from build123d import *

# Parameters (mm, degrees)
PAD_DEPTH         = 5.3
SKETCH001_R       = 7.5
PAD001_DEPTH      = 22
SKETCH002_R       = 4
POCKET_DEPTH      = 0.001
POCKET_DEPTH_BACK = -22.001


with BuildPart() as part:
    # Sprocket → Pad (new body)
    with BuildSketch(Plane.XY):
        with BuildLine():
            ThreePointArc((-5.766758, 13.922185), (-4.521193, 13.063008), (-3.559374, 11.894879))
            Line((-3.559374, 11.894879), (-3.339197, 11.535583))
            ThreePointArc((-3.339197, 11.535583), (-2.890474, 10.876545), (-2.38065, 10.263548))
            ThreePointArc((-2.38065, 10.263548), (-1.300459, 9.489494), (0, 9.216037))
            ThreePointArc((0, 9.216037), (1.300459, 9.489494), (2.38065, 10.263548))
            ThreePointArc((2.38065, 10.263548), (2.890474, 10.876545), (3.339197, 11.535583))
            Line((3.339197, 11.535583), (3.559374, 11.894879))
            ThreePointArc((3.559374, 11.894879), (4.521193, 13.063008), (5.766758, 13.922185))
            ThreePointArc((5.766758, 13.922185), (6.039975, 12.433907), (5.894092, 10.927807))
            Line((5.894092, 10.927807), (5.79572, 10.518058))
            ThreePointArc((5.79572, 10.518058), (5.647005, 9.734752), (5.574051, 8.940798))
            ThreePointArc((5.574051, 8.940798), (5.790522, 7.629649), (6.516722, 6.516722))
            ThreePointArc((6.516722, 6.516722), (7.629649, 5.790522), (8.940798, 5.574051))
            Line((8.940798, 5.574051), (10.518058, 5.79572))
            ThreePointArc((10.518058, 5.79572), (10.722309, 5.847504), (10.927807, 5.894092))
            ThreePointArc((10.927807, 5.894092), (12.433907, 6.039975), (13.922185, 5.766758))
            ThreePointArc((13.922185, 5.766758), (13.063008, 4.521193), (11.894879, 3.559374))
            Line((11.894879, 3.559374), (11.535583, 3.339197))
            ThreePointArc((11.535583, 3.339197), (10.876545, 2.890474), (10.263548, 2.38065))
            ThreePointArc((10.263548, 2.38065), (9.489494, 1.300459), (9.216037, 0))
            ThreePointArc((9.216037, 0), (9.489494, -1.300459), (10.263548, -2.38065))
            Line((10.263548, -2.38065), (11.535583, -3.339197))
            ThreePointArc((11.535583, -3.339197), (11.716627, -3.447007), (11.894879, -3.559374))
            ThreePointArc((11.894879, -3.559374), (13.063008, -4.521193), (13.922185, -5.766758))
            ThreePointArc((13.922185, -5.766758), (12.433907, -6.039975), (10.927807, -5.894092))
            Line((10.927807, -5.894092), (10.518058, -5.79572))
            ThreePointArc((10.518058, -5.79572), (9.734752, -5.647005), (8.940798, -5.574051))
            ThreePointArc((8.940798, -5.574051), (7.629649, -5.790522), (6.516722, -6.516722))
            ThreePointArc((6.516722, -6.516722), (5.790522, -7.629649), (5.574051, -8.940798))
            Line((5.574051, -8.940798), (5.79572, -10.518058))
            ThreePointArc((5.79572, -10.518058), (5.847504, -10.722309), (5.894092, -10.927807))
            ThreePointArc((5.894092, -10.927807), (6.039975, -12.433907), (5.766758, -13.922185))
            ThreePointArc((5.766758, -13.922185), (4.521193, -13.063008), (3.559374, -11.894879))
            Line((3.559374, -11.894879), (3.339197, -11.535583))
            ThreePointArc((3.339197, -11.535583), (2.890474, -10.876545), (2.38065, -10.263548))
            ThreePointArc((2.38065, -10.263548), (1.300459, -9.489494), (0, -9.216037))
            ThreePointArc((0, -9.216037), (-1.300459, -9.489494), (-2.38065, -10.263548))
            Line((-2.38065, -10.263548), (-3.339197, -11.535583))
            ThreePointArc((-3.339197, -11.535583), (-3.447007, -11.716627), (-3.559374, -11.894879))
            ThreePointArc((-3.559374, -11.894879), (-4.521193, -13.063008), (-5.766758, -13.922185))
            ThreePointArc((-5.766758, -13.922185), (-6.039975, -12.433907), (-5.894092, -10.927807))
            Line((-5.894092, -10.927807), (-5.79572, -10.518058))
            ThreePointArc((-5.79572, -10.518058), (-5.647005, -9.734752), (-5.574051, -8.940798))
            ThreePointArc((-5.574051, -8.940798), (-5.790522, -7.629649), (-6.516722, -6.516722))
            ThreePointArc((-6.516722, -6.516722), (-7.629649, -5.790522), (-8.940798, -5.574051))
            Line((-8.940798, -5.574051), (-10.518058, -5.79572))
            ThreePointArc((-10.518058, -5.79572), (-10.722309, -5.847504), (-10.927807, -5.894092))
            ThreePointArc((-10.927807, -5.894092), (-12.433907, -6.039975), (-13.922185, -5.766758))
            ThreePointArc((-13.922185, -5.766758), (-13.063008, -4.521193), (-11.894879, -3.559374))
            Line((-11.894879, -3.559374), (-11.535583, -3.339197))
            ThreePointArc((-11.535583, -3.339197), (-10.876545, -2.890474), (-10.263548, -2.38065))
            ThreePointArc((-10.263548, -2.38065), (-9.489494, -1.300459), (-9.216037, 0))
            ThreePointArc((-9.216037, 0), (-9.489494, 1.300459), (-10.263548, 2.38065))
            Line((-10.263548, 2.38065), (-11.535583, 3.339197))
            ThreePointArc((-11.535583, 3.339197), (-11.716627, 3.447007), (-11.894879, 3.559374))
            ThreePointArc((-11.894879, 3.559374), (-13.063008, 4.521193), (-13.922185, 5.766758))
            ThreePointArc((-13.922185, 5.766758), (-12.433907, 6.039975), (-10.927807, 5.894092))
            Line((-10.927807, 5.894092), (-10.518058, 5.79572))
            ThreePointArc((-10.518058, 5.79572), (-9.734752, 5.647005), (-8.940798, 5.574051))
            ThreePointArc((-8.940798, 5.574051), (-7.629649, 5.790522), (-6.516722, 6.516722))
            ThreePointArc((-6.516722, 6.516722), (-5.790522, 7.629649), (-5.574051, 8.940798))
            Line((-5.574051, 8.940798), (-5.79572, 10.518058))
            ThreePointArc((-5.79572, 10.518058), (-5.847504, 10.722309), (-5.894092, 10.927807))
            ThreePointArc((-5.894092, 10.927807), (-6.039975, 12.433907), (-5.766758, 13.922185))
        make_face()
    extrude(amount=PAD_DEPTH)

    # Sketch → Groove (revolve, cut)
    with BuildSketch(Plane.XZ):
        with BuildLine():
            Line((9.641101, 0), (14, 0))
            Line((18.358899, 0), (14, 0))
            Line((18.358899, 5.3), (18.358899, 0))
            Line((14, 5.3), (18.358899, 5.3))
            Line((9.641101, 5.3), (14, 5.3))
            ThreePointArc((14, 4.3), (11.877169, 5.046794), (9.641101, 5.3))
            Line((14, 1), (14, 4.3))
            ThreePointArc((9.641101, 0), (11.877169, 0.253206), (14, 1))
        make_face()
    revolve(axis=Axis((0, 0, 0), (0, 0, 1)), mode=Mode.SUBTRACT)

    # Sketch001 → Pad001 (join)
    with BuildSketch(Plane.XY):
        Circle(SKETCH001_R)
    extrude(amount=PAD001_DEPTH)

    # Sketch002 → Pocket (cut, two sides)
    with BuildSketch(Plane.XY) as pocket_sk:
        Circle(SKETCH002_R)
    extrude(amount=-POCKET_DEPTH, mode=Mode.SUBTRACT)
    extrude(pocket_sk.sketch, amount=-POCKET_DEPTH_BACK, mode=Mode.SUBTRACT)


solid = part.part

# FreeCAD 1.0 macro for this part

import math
import FreeCAD as App
import Part
import Sketcher

V = App.Vector
Q = App.Units.Quantity

doc = App.newDocument("Part")
params = doc.addObject("Spreadsheet::Sheet", "Params")
for row, (alias, value) in enumerate([
    ("pad1_length", "5.3 mm"),
    ("sketch2_height", "5.3 mm"),
    ("sketch2_height2", "3.3 mm"),
    ("groove_angle", "360 deg"),
    ("sketch3_diameter", "15 mm"),
    ("pad2_length", "22 mm"),
    ("sketch4_diameter", "8 mm"),
], start=1):
    params.set(f"A{row}", alias)
    params.set(f"B{row}", "=" + value)
    params.setAlias(f"B{row}", alias)

body = doc.addObject("PartDesign::Body", "Body")

# Sketch on XY plane
sketch1 = doc.addObject("Sketcher::SketchObject", "Sketch")
body.addObject(sketch1)
sketch1.AttachmentSupport = (doc.XY_Plane, [""])
sketch1.MapMode = "FlatFace"
sketch1.addGeometry(Part.ArcOfCircle(Part.Circle(V(-8.21, 9.04, 0), V(0, 0, 1), 5.46), math.radians(31), math.radians(63)), False)
sketch1.addGeometry(Part.ArcOfCircle(Part.Circle(V(-0.59, 12.2, 0), V(0, 0, 1), 5.46), math.radians(162), math.radians(193)), False)
sketch1.addGeometry(Part.ArcOfCircle(Part.Circle(V(2.23, 12.66, 0), V(0, 0, 1), 8.31), math.radians(-167.95), math.radians(-165.05)), False)
sketch1.addGeometry(Part.LineSegment(V(-5.8, 10.52, 0), V(-5.57, 8.94, 0)), False)
sketch1.addGeometry(Part.ArcOfCircle(Part.Circle(V(-8.8, 8.8, 0), V(0, 0, 1), 3.23), math.radians(-45), math.radians(3)), False)
sketch1.addGeometry(Part.ArcOfCircle(Part.Circle(V(-8.8, 8.8, 0), V(0, 0, 1), 3.23), math.radians(-93), math.radians(-45)), False)
sketch1.addGeometry(Part.ArcOfCircle(Part.Circle(V(-8.58, 13.88, 0), V(0, 0, 1), 8.31), math.radians(-103.5), math.radians(-92.5)), False)
sketch1.addGeometry(Part.LineSegment(V(-10.52, 5.8, 0), V(-10.93, 5.89, 0)), False)
sketch1.addGeometry(Part.ArcOfCircle(Part.Circle(V(-12.2, 0.59, 0), V(0, 0, 1), 5.46), math.radians(77), math.radians(108)), False)
sketch1.addGeometry(Part.ArcOfCircle(Part.Circle(V(-9.04, 8.21, 0), V(0, 0, 1), 5.46), math.radians(-153), math.radians(-121)), False)
sketch1.addGeometry(Part.ArcOfCircle(Part.Circle(V(-7.38, 10.53, 0), V(0, 0, 1), 8.31), math.radians(-122.95), math.radians(-120.05)), False)
sketch1.addGeometry(Part.LineSegment(V(-11.54, 3.34, 0), V(-10.26, 2.38, 0)), False)
sketch1.addGeometry(Part.ArcOfCircle(Part.Circle(V(-12.45, 0, 0), V(0, 0, 1), 3.23), math.radians(0), math.radians(48)), False)
sketch1.addGeometry(Part.ArcOfCircle(Part.Circle(V(-12.45, 0, 0), V(0, 0, 1), 3.23), math.radians(-48), math.radians(0)), False)
sketch1.addGeometry(Part.ArcOfCircle(Part.Circle(V(-15.88, 3.75, 0), V(0, 0, 1), 8.31), math.radians(-58.5), math.radians(-47.5)), False)
sketch1.addGeometry(Part.LineSegment(V(-11.54, -3.34, 0), V(-11.89, -3.56, 0)), False)
sketch1.addGeometry(Part.ArcOfCircle(Part.Circle(V(-9.04, -8.21, 0), V(0, 0, 1), 5.46), math.radians(121), math.radians(153)), False)
sketch1.addGeometry(Part.ArcOfCircle(Part.Circle(V(-12.2, -0.59, 0), V(0, 0, 1), 5.46), math.radians(-108), math.radians(-77)), False)
sketch1.addGeometry(Part.ArcOfCircle(Part.Circle(V(-12.66, 2.23, 0), V(0, 0, 1), 8.31), math.radians(-77.95), math.radians(-75.05)), False)
sketch1.addGeometry(Part.LineSegment(V(-10.52, -5.8, 0), V(-8.94, -5.57, 0)), False)
sketch1.addGeometry(Part.ArcOfCircle(Part.Circle(V(-8.8, -8.8, 0), V(0, 0, 1), 3.23), math.radians(45), math.radians(93)), False)
sketch1.addGeometry(Part.ArcOfCircle(Part.Circle(V(-8.8, -8.8, 0), V(0, 0, 1), 3.23), math.radians(-3), math.radians(45)), False)
sketch1.addGeometry(Part.ArcOfCircle(Part.Circle(V(-13.88, -8.58, 0), V(0, 0, 1), 8.31), math.radians(-13.5), math.radians(-2.5)), False)
sketch1.addGeometry(Part.LineSegment(V(-5.8, -10.52, 0), V(-5.89, -10.93, 0)), False)
sketch1.addGeometry(Part.ArcOfCircle(Part.Circle(V(-0.59, -12.2, 0), V(0, 0, 1), 5.46), math.radians(167), math.radians(198)), False)
sketch1.addGeometry(Part.ArcOfCircle(Part.Circle(V(-8.21, -9.04, 0), V(0, 0, 1), 5.46), math.radians(-63), math.radians(-31)), False)
sketch1.addGeometry(Part.ArcOfCircle(Part.Circle(V(-10.53, -7.38, 0), V(0, 0, 1), 8.31), math.radians(-32.95), math.radians(-30.05)), False)
sketch1.addGeometry(Part.LineSegment(V(-3.34, -11.54, 0), V(-2.38, -10.26, 0)), False)
sketch1.addGeometry(Part.ArcOfCircle(Part.Circle(V(0, -12.45, 0), V(0, 0, 1), 3.23), math.radians(90), math.radians(138)), False)
sketch1.addGeometry(Part.ArcOfCircle(Part.Circle(V(0, -12.45, 0), V(0, 0, 1), 3.23), math.radians(42), math.radians(90)), False)
sketch1.addGeometry(Part.ArcOfCircle(Part.Circle(V(-3.75, -15.88, 0), V(0, 0, 1), 8.31), math.radians(31.5), math.radians(42.5)), False)
sketch1.addGeometry(Part.LineSegment(V(3.34, -11.54, 0), V(3.56, -11.89, 0)), False)
sketch1.addGeometry(Part.ArcOfCircle(Part.Circle(V(8.21, -9.04, 0), V(0, 0, 1), 5.46), math.radians(-149), math.radians(-117)), False)
sketch1.addGeometry(Part.ArcOfCircle(Part.Circle(V(0.59, -12.2, 0), V(0, 0, 1), 5.46), math.radians(-18), math.radians(13)), False)
sketch1.addGeometry(Part.ArcOfCircle(Part.Circle(V(-2.23, -12.66, 0), V(0, 0, 1), 8.31), math.radians(12.05), math.radians(14.95)), False)
sketch1.addGeometry(Part.LineSegment(V(5.8, -10.52, 0), V(5.57, -8.94, 0)), False)
sketch1.addGeometry(Part.ArcOfCircle(Part.Circle(V(8.8, -8.8, 0), V(0, 0, 1), 3.23), math.radians(135), math.radians(183)), False)
sketch1.addGeometry(Part.ArcOfCircle(Part.Circle(V(8.8, -8.8, 0), V(0, 0, 1), 3.23), math.radians(87), math.radians(135)), False)
sketch1.addGeometry(Part.ArcOfCircle(Part.Circle(V(8.58, -13.88, 0), V(0, 0, 1), 8.31), math.radians(76.5), math.radians(87.5)), False)
sketch1.addGeometry(Part.LineSegment(V(10.52, -5.8, 0), V(10.93, -5.89, 0)), False)
sketch1.addGeometry(Part.ArcOfCircle(Part.Circle(V(12.2, -0.59, 0), V(0, 0, 1), 5.46), math.radians(-103), math.radians(-72)), False)
sketch1.addGeometry(Part.ArcOfCircle(Part.Circle(V(9.04, -8.21, 0), V(0, 0, 1), 5.46), math.radians(27), math.radians(59)), False)
sketch1.addGeometry(Part.ArcOfCircle(Part.Circle(V(7.38, -10.53, 0), V(0, 0, 1), 8.31), math.radians(57.05), math.radians(59.95)), False)
sketch1.addGeometry(Part.LineSegment(V(11.54, -3.34, 0), V(10.26, -2.38, 0)), False)
sketch1.addGeometry(Part.ArcOfCircle(Part.Circle(V(12.45, 0, 0), V(0, 0, 1), 3.23), math.radians(180), math.radians(228)), False)
sketch1.addGeometry(Part.ArcOfCircle(Part.Circle(V(12.45, 0, 0), V(0, 0, 1), 3.23), math.radians(132), math.radians(180)), False)
sketch1.addGeometry(Part.ArcOfCircle(Part.Circle(V(15.88, -3.75, 0), V(0, 0, 1), 8.31), math.radians(121.5), math.radians(132.5)), False)
sketch1.addGeometry(Part.LineSegment(V(11.54, 3.34, 0), V(11.89, 3.56, 0)), False)
sketch1.addGeometry(Part.ArcOfCircle(Part.Circle(V(9.04, 8.21, 0), V(0, 0, 1), 5.46), math.radians(-59), math.radians(-27)), False)
sketch1.addGeometry(Part.ArcOfCircle(Part.Circle(V(12.2, 0.59, 0), V(0, 0, 1), 5.46), math.radians(72), math.radians(103)), False)
sketch1.addGeometry(Part.ArcOfCircle(Part.Circle(V(12.66, -2.23, 0), V(0, 0, 1), 8.31), math.radians(102.05), math.radians(104.95)), False)
sketch1.addGeometry(Part.LineSegment(V(10.52, 5.8, 0), V(8.94, 5.57, 0)), False)
sketch1.addGeometry(Part.ArcOfCircle(Part.Circle(V(8.8, 8.8, 0), V(0, 0, 1), 3.23), math.radians(-135), math.radians(-87)), False)
sketch1.addGeometry(Part.ArcOfCircle(Part.Circle(V(8.8, 8.8, 0), V(0, 0, 1), 3.23), math.radians(177), math.radians(225)), False)
sketch1.addGeometry(Part.ArcOfCircle(Part.Circle(V(13.88, 8.58, 0), V(0, 0, 1), 8.31), math.radians(166.5), math.radians(177.5)), False)
sketch1.addGeometry(Part.LineSegment(V(5.8, 10.52, 0), V(5.89, 10.93, 0)), False)
sketch1.addGeometry(Part.ArcOfCircle(Part.Circle(V(0.59, 12.2, 0), V(0, 0, 1), 5.46), math.radians(-13), math.radians(18)), False)
sketch1.addGeometry(Part.ArcOfCircle(Part.Circle(V(8.21, 9.04, 0), V(0, 0, 1), 5.46), math.radians(117), math.radians(149)), False)
sketch1.addGeometry(Part.LineSegment(V(3.56, 11.89, 0), V(3.34, 11.54, 0)), False)
sketch1.addGeometry(Part.ArcOfCircle(Part.Circle(V(-3.75, 15.88, 0), V(0, 0, 1), 8.31), math.radians(-42.5), math.radians(-31.5)), False)
sketch1.addGeometry(Part.ArcOfCircle(Part.Circle(V(0, 12.45, 0), V(0, 0, 1), 3.23), math.radians(-90), math.radians(-42)), False)
sketch1.addGeometry(Part.ArcOfCircle(Part.Circle(V(0, 12.45, 0), V(0, 0, 1), 3.23), math.radians(-138), math.radians(-90)), False)
sketch1.addGeometry(Part.ArcOfCircle(Part.Circle(V(3.75, 15.88, 0), V(0, 0, 1), 8.31), math.radians(-148.5), math.radians(-137.5)), False)
sketch1.addGeometry(Part.LineSegment(V(-3.34, 11.54, 0), V(-3.56, 11.89, 0)), False)
sketch1.addConstraint(Sketcher.Constraint("Coincident", 0, 2, 1, 1))
sketch1.addConstraint(Sketcher.Constraint("Coincident", 1, 2, 2, 1))
sketch1.addConstraint(Sketcher.Constraint("Coincident", 2, 2, 3, 1))
sketch1.addConstraint(Sketcher.Constraint("Coincident", 3, 2, 4, 2))
sketch1.addConstraint(Sketcher.Constraint("Tangent", 4, 1, 5, 2))
sketch1.addConstraint(Sketcher.Constraint("Tangent", 5, 1, 6, 2))
sketch1.addConstraint(Sketcher.Constraint("Tangent", 6, 1, 7, 1))
sketch1.addConstraint(Sketcher.Constraint("Tangent", 7, 2, 8, 1))
sketch1.addConstraint(Sketcher.Constraint("Coincident", 8, 2, 9, 1))
sketch1.addConstraint(Sketcher.Constraint("Coincident", 9, 2, 10, 1))
sketch1.addConstraint(Sketcher.Constraint("Coincident", 10, 2, 11, 1))
sketch1.addConstraint(Sketcher.Constraint("Coincident", 11, 2, 12, 2))
sketch1.addConstraint(Sketcher.Constraint("Tangent", 12, 1, 13, 2))
sketch1.addConstraint(Sketcher.Constraint("Tangent", 13, 1, 14, 2))
sketch1.addConstraint(Sketcher.Constraint("Tangent", 14, 1, 15, 1))
sketch1.addConstraint(Sketcher.Constraint("Tangent", 15, 2, 16, 1))
sketch1.addConstraint(Sketcher.Constraint("Coincident", 16, 2, 17, 1))
sketch1.addConstraint(Sketcher.Constraint("Coincident", 17, 2, 18, 1))
sketch1.addConstraint(Sketcher.Constraint("Coincident", 18, 2, 19, 1))
sketch1.addConstraint(Sketcher.Constraint("Coincident", 19, 2, 20, 2))
sketch1.addConstraint(Sketcher.Constraint("Tangent", 20, 1, 21, 2))
sketch1.addConstraint(Sketcher.Constraint("Tangent", 21, 1, 22, 2))
sketch1.addConstraint(Sketcher.Constraint("Tangent", 22, 1, 23, 1))
sketch1.addConstraint(Sketcher.Constraint("Tangent", 23, 2, 24, 1))
sketch1.addConstraint(Sketcher.Constraint("Coincident", 24, 2, 25, 1))
sketch1.addConstraint(Sketcher.Constraint("Coincident", 25, 2, 26, 1))
sketch1.addConstraint(Sketcher.Constraint("Coincident", 26, 2, 27, 1))
sketch1.addConstraint(Sketcher.Constraint("Coincident", 27, 2, 28, 2))
sketch1.addConstraint(Sketcher.Constraint("Tangent", 28, 1, 29, 2))
sketch1.addConstraint(Sketcher.Constraint("Tangent", 29, 1, 30, 2))
sketch1.addConstraint(Sketcher.Constraint("Tangent", 30, 1, 31, 1))
sketch1.addConstraint(Sketcher.Constraint("Tangent", 31, 2, 32, 1))
sketch1.addConstraint(Sketcher.Constraint("Coincident", 32, 2, 33, 1))
sketch1.addConstraint(Sketcher.Constraint("Coincident", 33, 2, 34, 1))
sketch1.addConstraint(Sketcher.Constraint("Coincident", 34, 2, 35, 1))
sketch1.addConstraint(Sketcher.Constraint("Coincident", 35, 2, 36, 2))
sketch1.addConstraint(Sketcher.Constraint("Tangent", 36, 1, 37, 2))
sketch1.addConstraint(Sketcher.Constraint("Tangent", 37, 1, 38, 2))
sketch1.addConstraint(Sketcher.Constraint("Tangent", 38, 1, 39, 1))
sketch1.addConstraint(Sketcher.Constraint("Tangent", 39, 2, 40, 1))
sketch1.addConstraint(Sketcher.Constraint("Coincident", 40, 2, 41, 1))
sketch1.addConstraint(Sketcher.Constraint("Coincident", 41, 2, 42, 1))
sketch1.addConstraint(Sketcher.Constraint("Coincident", 42, 2, 43, 1))
sketch1.addConstraint(Sketcher.Constraint("Coincident", 43, 2, 44, 2))
sketch1.addConstraint(Sketcher.Constraint("Tangent", 44, 1, 45, 2))
sketch1.addConstraint(Sketcher.Constraint("Tangent", 45, 1, 46, 2))
sketch1.addConstraint(Sketcher.Constraint("Tangent", 46, 1, 47, 1))
sketch1.addConstraint(Sketcher.Constraint("Tangent", 47, 2, 48, 1))
sketch1.addConstraint(Sketcher.Constraint("Coincident", 48, 2, 49, 1))
sketch1.addConstraint(Sketcher.Constraint("Coincident", 49, 2, 50, 1))
sketch1.addConstraint(Sketcher.Constraint("Coincident", 50, 2, 51, 1))
sketch1.addConstraint(Sketcher.Constraint("Coincident", 51, 2, 52, 2))
sketch1.addConstraint(Sketcher.Constraint("Tangent", 52, 1, 53, 2))
sketch1.addConstraint(Sketcher.Constraint("Tangent", 53, 1, 54, 2))
sketch1.addConstraint(Sketcher.Constraint("Tangent", 54, 1, 55, 1))
sketch1.addConstraint(Sketcher.Constraint("Tangent", 55, 2, 56, 1))
sketch1.addConstraint(Sketcher.Constraint("Coincident", 56, 2, 57, 1))
sketch1.addConstraint(Sketcher.Constraint("Tangent", 57, 2, 58, 1))
sketch1.addConstraint(Sketcher.Constraint("Tangent", 58, 2, 59, 2))
sketch1.addConstraint(Sketcher.Constraint("Tangent", 59, 1, 60, 2))
sketch1.addConstraint(Sketcher.Constraint("Tangent", 60, 1, 61, 2))
sketch1.addConstraint(Sketcher.Constraint("Tangent", 61, 1, 62, 2))
sketch1.addConstraint(Sketcher.Constraint("Tangent", 62, 1, 63, 1))
sketch1.addConstraint(Sketcher.Constraint("Tangent", 63, 2, 0, 1))
sketch1.addConstraint(Sketcher.Constraint("Equal", 4, 5))
sketch1.addConstraint(Sketcher.Constraint("Equal", 1, 8))
sketch1.addConstraint(Sketcher.Constraint("Equal", 0, 9))
sketch1.addConstraint(Sketcher.Constraint("Equal", 5, 12))
sketch1.addConstraint(Sketcher.Constraint("Equal", 12, 13))
sketch1.addConstraint(Sketcher.Constraint("Equal", 6, 14))
sketch1.addConstraint(Sketcher.Constraint("Equal", 9, 16))
sketch1.addConstraint(Sketcher.Constraint("Equal", 8, 17))
sketch1.addConstraint(Sketcher.Constraint("Equal", 2, 18))
sketch1.addConstraint(Sketcher.Constraint("Equal", 13, 20))
sketch1.addConstraint(Sketcher.Constraint("Equal", 20, 21))
sketch1.addConstraint(Sketcher.Constraint("Equal", 14, 22))
sketch1.addConstraint(Sketcher.Constraint("Equal", 17, 24))
sketch1.addConstraint(Sketcher.Constraint("Equal", 16, 25))
sketch1.addConstraint(Sketcher.Constraint("Equal", 10, 26))
sketch1.addConstraint(Sketcher.Constraint("Equal", 21, 28))
sketch1.addConstraint(Sketcher.Constraint("Equal", 28, 29))
sketch1.addConstraint(Sketcher.Constraint("Equal", 22, 30))
sketch1.addConstraint(Sketcher.Constraint("Equal", 25, 32))
sketch1.addConstraint(Sketcher.Constraint("Equal", 24, 33))
sketch1.addConstraint(Sketcher.Constraint("Equal", 18, 34))
sketch1.addConstraint(Sketcher.Constraint("Equal", 29, 36))
sketch1.addConstraint(Sketcher.Constraint("Equal", 36, 37))
sketch1.addConstraint(Sketcher.Constraint("Equal", 30, 38))
sketch1.addConstraint(Sketcher.Constraint("Equal", 33, 40))
sketch1.addConstraint(Sketcher.Constraint("Equal", 32, 41))
sketch1.addConstraint(Sketcher.Constraint("Equal", 26, 42))
sketch1.addConstraint(Sketcher.Constraint("Equal", 37, 44))
sketch1.addConstraint(Sketcher.Constraint("Equal", 44, 45))
sketch1.addConstraint(Sketcher.Constraint("Equal", 38, 46))
sketch1.addConstraint(Sketcher.Constraint("Equal", 41, 48))
sketch1.addConstraint(Sketcher.Constraint("Equal", 40, 49))
sketch1.addConstraint(Sketcher.Constraint("Equal", 34, 50))
sketch1.addConstraint(Sketcher.Constraint("Equal", 45, 52))
sketch1.addConstraint(Sketcher.Constraint("Equal", 52, 53))
sketch1.addConstraint(Sketcher.Constraint("Equal", 46, 54))
sketch1.addConstraint(Sketcher.Constraint("Equal", 49, 56))
sketch1.addConstraint(Sketcher.Constraint("Equal", 48, 57))
sketch1.addConstraint(Sketcher.Constraint("Equal", 54, 59))
sketch1.addConstraint(Sketcher.Constraint("Equal", 53, 60))
sketch1.addConstraint(Sketcher.Constraint("Equal", 60, 61))
sketch1.addConstraint(Sketcher.Constraint("Equal", 59, 62))
sketch1.addConstraint(Sketcher.Constraint("Symmetric", 0, 3, 32, 3, -1, 1))
sketch1.addConstraint(Sketcher.Constraint("Symmetric", 1, 3, 33, 3, -1, 1))
sketch1.addConstraint(Sketcher.Constraint("Symmetric", 2, 3, 34, 3, -1, 1))
sketch1.addConstraint(Sketcher.Constraint("Symmetric", 4, 3, 36, 3, -1, 1))
sketch1.addConstraint(Sketcher.Constraint("Symmetric", 8, 3, 40, 3, -1, 1))
sketch1.addConstraint(Sketcher.Constraint("Symmetric", 9, 3, 41, 3, -1, 1))
sketch1.addConstraint(Sketcher.Constraint("Symmetric", 10, 3, 42, 3, -1, 1))
sketch1.addConstraint(Sketcher.Constraint("Symmetric", 12, 3, 44, 3, -1, 1))
sketch1.addConstraint(Sketcher.Constraint("Symmetric", 16, 3, 48, 3, -1, 1))
sketch1.addConstraint(Sketcher.Constraint("Symmetric", 17, 3, 49, 3, -1, 1))
sketch1.addConstraint(Sketcher.Constraint("Symmetric", 18, 3, 50, 3, -1, 1))
sketch1.addConstraint(Sketcher.Constraint("Symmetric", 20, 3, 52, 3, -1, 1))
sketch1.addConstraint(Sketcher.Constraint("Symmetric", 24, 3, 56, 3, -1, 1))
sketch1.addConstraint(Sketcher.Constraint("Symmetric", 25, 3, 57, 3, -1, 1))
sketch1.addConstraint(Sketcher.Constraint("Symmetric", 28, 3, 60, 3, -1, 1))
sketch1.addConstraint(Sketcher.Constraint("Symmetric", 26, 2, 58, 2, -1, 1))
sketch1.addConstraint(Sketcher.Constraint("Symmetric", 25, 3, 32, 3, -2))
sketch1.addConstraint(Sketcher.Constraint("Symmetric", 24, 3, 33, 3, -2))
sketch1.addConstraint(Sketcher.Constraint("Symmetric", 20, 3, 36, 3, -2))
sketch1.addConstraint(Sketcher.Constraint("Symmetric", 17, 3, 40, 3, -2))
sketch1.addConstraint(Sketcher.Constraint("Symmetric", 16, 3, 41, 3, -2))
sketch1.addConstraint(Sketcher.Constraint("Symmetric", 59, 3, 62, 3, -2))
sketch1.addConstraint(Sketcher.Constraint("Symmetric", 22, 1, 34, 2, -2))
sketch1.addConstraint(Sketcher.Constraint("Symmetric", 18, 2, 38, 1, -2))
sketch1.addConstraint(Sketcher.Constraint("Symmetric", 14, 1, 42, 2, -2))
sketch1.addConstraint(Sketcher.Constraint("Symmetric", 13, 1, 43, 2, -2))
sketch1.addConstraint(Sketcher.Constraint("Symmetric", 10, 2, 46, 1, -2))
sketch1.addConstraint(Sketcher.Constraint("Symmetric", 6, 1, 50, 2, -2))
sketch1.addConstraint(Sketcher.Constraint("Symmetric", 2, 2, 54, 1, -2))
sketch1.addConstraint(Sketcher.Constraint("PointOnObject", 12, 1, -1))
sketch1.addConstraint(Sketcher.Constraint("PointOnObject", 28, 1, -2))
sketch1.addConstraint(Sketcher.Constraint("PointOnObject", 44, 1, -1))
sketch1.addConstraint(Sketcher.Constraint("PointOnObject", 60, 1, -2))
sketch1.addConstraint(Sketcher.Constraint("Perpendicular", 3, 19))
sketch1.addConstraint(Sketcher.Constraint("Perpendicular", 7, 23))
sketch1.addConstraint(Sketcher.Constraint("Perpendicular", 11, 27))
sketch1.addConstraint(Sketcher.Constraint("Perpendicular", 15, 31))
sketch1.addConstraint(Sketcher.Constraint("Perpendicular", 19, 35))
sketch1.addConstraint(Sketcher.Constraint("Perpendicular", 27, 43))
sketch1.addConstraint(Sketcher.Constraint("Perpendicular", 35, 51))
sketch1.addConstraint(Sketcher.Constraint("Perpendicular", 47, 63))
sketch1.addConstraint(Sketcher.Constraint("Horizontal", 27, 2, 29, 1))
sketch1.addConstraint(Sketcher.Constraint("Horizontal", 25, 2, 31, 2))
sketch1.addConstraint(Sketcher.Constraint("Horizontal", 23, 2, 33, 2))
sketch1.addConstraint(Sketcher.Constraint("Horizontal", 21, 1, 35, 2))
sketch1.addConstraint(Sketcher.Constraint("Horizontal", 20, 1, 36, 1))
sketch1.addConstraint(Sketcher.Constraint("Horizontal", 19, 2, 37, 1))
sketch1.addConstraint(Sketcher.Constraint("Horizontal", 17, 2, 39, 2))
sketch1.addConstraint(Sketcher.Constraint("Horizontal", 15, 2, 41, 2))
sketch1.addConstraint(Sketcher.Constraint("Horizontal", 4, 1, 52, 1))
sketch1.addConstraint(Sketcher.Constraint("Vertical", 4, 1, 20, 1))
sketch1.addConstraint(Sketcher.Constraint("Equal", 3, 11))
sketch1.addConstraint(Sketcher.Constraint("Equal", 7, 15))
sketch1.addConstraint(Sketcher.Constraint("Equal", 15, 23))
sketch1.addConstraint(Sketcher.Constraint("Equal", 23, 31))
sketch1.addConstraint(Sketcher.Constraint("Angle", 3, Q("-82.000016 deg")))
sketch1.addConstraint(Sketcher.Constraint("Angle", 11, Q("-36.999996 deg")))
sketch1.addConstraint(Sketcher.Constraint("Angle", 7, Q("166.500004 deg")))
sketch1.addConstraint(Sketcher.Constraint("Radius", 2, 8.309091))
sketch1.addConstraint(Sketcher.Constraint("Radius", 0, 5.458237))
sketch1.addConstraint(Sketcher.Constraint("Radius", 1, 5.458248))
sketch1.addConstraint(Sketcher.Constraint("Radius", 4, 3.228972))
sketch1.addConstraint(Sketcher.Constraint("Radius", 6, 8.308996))
sketch1.addConstraint(Sketcher.Constraint("Radius", 10, 8.307925))
sketch1.addConstraint(Sketcher.Constraint("DistanceY", -1, 1, 0, 3, 9.042958))
sketch1.addConstraint(Sketcher.Constraint("DistanceY", -1, 1, 1, 3, 12.202008))
sketch1.addConstraint(Sketcher.Constraint("DistanceX", 4, 3, -1, 1, 8.79995))
sketch1.addConstraint(Sketcher.Constraint("DistanceY", -1, 1, 4, 3, 8.79995))
sketch1.addConstraint(Sketcher.Constraint("DistanceX", 9, 3, -1, 1, 9.042958))
sketch1.addConstraint(Sketcher.Constraint("DistanceX", 4, 1, -1, 1, 6.516722))
pad1 = doc.addObject("PartDesign::Pad", "Pad")
body.addObject(pad1)
pad1.Profile = sketch1
pad1.setExpression("Length", "Params.pad1_length")

# Sketch on XZ plane
sketch2 = doc.addObject("Sketcher::SketchObject", "Sketch001")
body.addObject(sketch2)
sketch2.AttachmentSupport = (doc.XZ_Plane, [""])
sketch2.MapMode = "FlatFace"
sketch2.addGeometry(Part.LineSegment(V(9.6, 0, 0), V(18.4, 0, 0)), False)
sketch2.addGeometry(Part.LineSegment(V(18.4, 0, 0), V(18.4, 5.3, 0)), False)
sketch2.addGeometry(Part.LineSegment(V(18.4, 5.3, 0), V(9.6, 5.3, 0)), False)
sketch2.addGeometry(Part.ArcOfCircle(Part.Circle(V(9.6, -4.7, 0), V(0, 0, 1), 10), math.radians(64), math.radians(90)), False)
sketch2.addGeometry(Part.LineSegment(V(14, 4.3, 0), V(14, 1, 0)), False)
sketch2.addGeometry(Part.ArcOfCircle(Part.Circle(V(9.6, 10, 0), V(0, 0, 1), 10), math.radians(-90), math.radians(-64)), False)
sketch2.addConstraint(Sketcher.Constraint("Coincident", 0, 2, 1, 1))
sketch2.addConstraint(Sketcher.Constraint("Coincident", 1, 2, 2, 1))
sketch2.addConstraint(Sketcher.Constraint("Tangent", 2, 2, 3, 2))
sketch2.addConstraint(Sketcher.Constraint("Coincident", 3, 1, 4, 1))
sketch2.addConstraint(Sketcher.Constraint("Coincident", 4, 2, 5, 2))
sketch2.addConstraint(Sketcher.Constraint("Tangent", 5, 1, 0, 1))
sketch2.addConstraint(Sketcher.Constraint("Horizontal", 0))
sketch2.addConstraint(Sketcher.Constraint("Vertical", 1))
sketch2.addConstraint(Sketcher.Constraint("Horizontal", 2))
sketch2.addConstraint(Sketcher.Constraint("Vertical", 4))
sketch2.addConstraint(Sketcher.Constraint("Equal", 3, 5))
sketch2.addConstraint(Sketcher.Constraint("PointOnObject", 0, 2, -1))
sketch2.addConstraint(Sketcher.Constraint("Vertical", 3, 3, 5, 3))
sketch2.addConstraint(Sketcher.Constraint("DistanceY", 1, 1, 1, 2, 5.3))
sketch2.addConstraint(Sketcher.Constraint("DistanceY", 4, 2, 4, 1, 3.3))
sketch2.addConstraint(Sketcher.Constraint("DistanceX", -1, 1, 3, 1, 14.0))
sketch2.addConstraint(Sketcher.Constraint("Radius", 3, 10.000013))
sketch2.addConstraint(Sketcher.Constraint("DistanceX", -1, 1, 0, 2, 18.358899))
sketch2.setExpression("Constraints[13]", "Params.sketch2_height")
sketch2.setExpression("Constraints[14]", "Params.sketch2_height2")
groove = doc.addObject("PartDesign::Groove", "Groove")
body.addObject(groove)
groove.Profile = sketch2
groove.ReferenceAxis = (sketch2, ["V_Axis"])
groove.setExpression("Angle", "Params.groove_angle")

# Sketch on XY plane
sketch3 = doc.addObject("Sketcher::SketchObject", "Sketch002")
body.addObject(sketch3)
sketch3.AttachmentSupport = (doc.XY_Plane, [""])
sketch3.MapMode = "FlatFace"
sketch3.addGeometry(Part.Circle(V(0, 0, 0), V(0, 0, 1), 8), False)
sketch3.addConstraint(Sketcher.Constraint("Coincident", 0, 3, -1, 1))
sketch3.addConstraint(Sketcher.Constraint("Diameter", 0, 15.0))
sketch3.setExpression("Constraints[1]", "Params.sketch3_diameter")
pad2 = doc.addObject("PartDesign::Pad", "Pad001")
body.addObject(pad2)
pad2.Profile = sketch3
pad2.setExpression("Length", "Params.pad2_length")

# Sketch on XY plane
sketch4 = doc.addObject("Sketcher::SketchObject", "Sketch003")
body.addObject(sketch4)
sketch4.AttachmentSupport = (doc.XY_Plane, [""])
sketch4.MapMode = "FlatFace"
sketch4.addGeometry(Part.Circle(V(0, 0, 0), V(0, 0, 1), 4), False)
sketch4.addConstraint(Sketcher.Constraint("Coincident", 0, 3, -1, 1))
sketch4.addConstraint(Sketcher.Constraint("Diameter", 0, 8.0))
sketch4.setExpression("Constraints[1]", "Params.sketch4_diameter")
pocket1 = doc.addObject("PartDesign::Pocket", "Pocket")
body.addObject(pocket1)
pocket1.Profile = sketch4
pocket1.Type = "ThroughAll"
pocket1.Midplane = True

doc.recompute()
